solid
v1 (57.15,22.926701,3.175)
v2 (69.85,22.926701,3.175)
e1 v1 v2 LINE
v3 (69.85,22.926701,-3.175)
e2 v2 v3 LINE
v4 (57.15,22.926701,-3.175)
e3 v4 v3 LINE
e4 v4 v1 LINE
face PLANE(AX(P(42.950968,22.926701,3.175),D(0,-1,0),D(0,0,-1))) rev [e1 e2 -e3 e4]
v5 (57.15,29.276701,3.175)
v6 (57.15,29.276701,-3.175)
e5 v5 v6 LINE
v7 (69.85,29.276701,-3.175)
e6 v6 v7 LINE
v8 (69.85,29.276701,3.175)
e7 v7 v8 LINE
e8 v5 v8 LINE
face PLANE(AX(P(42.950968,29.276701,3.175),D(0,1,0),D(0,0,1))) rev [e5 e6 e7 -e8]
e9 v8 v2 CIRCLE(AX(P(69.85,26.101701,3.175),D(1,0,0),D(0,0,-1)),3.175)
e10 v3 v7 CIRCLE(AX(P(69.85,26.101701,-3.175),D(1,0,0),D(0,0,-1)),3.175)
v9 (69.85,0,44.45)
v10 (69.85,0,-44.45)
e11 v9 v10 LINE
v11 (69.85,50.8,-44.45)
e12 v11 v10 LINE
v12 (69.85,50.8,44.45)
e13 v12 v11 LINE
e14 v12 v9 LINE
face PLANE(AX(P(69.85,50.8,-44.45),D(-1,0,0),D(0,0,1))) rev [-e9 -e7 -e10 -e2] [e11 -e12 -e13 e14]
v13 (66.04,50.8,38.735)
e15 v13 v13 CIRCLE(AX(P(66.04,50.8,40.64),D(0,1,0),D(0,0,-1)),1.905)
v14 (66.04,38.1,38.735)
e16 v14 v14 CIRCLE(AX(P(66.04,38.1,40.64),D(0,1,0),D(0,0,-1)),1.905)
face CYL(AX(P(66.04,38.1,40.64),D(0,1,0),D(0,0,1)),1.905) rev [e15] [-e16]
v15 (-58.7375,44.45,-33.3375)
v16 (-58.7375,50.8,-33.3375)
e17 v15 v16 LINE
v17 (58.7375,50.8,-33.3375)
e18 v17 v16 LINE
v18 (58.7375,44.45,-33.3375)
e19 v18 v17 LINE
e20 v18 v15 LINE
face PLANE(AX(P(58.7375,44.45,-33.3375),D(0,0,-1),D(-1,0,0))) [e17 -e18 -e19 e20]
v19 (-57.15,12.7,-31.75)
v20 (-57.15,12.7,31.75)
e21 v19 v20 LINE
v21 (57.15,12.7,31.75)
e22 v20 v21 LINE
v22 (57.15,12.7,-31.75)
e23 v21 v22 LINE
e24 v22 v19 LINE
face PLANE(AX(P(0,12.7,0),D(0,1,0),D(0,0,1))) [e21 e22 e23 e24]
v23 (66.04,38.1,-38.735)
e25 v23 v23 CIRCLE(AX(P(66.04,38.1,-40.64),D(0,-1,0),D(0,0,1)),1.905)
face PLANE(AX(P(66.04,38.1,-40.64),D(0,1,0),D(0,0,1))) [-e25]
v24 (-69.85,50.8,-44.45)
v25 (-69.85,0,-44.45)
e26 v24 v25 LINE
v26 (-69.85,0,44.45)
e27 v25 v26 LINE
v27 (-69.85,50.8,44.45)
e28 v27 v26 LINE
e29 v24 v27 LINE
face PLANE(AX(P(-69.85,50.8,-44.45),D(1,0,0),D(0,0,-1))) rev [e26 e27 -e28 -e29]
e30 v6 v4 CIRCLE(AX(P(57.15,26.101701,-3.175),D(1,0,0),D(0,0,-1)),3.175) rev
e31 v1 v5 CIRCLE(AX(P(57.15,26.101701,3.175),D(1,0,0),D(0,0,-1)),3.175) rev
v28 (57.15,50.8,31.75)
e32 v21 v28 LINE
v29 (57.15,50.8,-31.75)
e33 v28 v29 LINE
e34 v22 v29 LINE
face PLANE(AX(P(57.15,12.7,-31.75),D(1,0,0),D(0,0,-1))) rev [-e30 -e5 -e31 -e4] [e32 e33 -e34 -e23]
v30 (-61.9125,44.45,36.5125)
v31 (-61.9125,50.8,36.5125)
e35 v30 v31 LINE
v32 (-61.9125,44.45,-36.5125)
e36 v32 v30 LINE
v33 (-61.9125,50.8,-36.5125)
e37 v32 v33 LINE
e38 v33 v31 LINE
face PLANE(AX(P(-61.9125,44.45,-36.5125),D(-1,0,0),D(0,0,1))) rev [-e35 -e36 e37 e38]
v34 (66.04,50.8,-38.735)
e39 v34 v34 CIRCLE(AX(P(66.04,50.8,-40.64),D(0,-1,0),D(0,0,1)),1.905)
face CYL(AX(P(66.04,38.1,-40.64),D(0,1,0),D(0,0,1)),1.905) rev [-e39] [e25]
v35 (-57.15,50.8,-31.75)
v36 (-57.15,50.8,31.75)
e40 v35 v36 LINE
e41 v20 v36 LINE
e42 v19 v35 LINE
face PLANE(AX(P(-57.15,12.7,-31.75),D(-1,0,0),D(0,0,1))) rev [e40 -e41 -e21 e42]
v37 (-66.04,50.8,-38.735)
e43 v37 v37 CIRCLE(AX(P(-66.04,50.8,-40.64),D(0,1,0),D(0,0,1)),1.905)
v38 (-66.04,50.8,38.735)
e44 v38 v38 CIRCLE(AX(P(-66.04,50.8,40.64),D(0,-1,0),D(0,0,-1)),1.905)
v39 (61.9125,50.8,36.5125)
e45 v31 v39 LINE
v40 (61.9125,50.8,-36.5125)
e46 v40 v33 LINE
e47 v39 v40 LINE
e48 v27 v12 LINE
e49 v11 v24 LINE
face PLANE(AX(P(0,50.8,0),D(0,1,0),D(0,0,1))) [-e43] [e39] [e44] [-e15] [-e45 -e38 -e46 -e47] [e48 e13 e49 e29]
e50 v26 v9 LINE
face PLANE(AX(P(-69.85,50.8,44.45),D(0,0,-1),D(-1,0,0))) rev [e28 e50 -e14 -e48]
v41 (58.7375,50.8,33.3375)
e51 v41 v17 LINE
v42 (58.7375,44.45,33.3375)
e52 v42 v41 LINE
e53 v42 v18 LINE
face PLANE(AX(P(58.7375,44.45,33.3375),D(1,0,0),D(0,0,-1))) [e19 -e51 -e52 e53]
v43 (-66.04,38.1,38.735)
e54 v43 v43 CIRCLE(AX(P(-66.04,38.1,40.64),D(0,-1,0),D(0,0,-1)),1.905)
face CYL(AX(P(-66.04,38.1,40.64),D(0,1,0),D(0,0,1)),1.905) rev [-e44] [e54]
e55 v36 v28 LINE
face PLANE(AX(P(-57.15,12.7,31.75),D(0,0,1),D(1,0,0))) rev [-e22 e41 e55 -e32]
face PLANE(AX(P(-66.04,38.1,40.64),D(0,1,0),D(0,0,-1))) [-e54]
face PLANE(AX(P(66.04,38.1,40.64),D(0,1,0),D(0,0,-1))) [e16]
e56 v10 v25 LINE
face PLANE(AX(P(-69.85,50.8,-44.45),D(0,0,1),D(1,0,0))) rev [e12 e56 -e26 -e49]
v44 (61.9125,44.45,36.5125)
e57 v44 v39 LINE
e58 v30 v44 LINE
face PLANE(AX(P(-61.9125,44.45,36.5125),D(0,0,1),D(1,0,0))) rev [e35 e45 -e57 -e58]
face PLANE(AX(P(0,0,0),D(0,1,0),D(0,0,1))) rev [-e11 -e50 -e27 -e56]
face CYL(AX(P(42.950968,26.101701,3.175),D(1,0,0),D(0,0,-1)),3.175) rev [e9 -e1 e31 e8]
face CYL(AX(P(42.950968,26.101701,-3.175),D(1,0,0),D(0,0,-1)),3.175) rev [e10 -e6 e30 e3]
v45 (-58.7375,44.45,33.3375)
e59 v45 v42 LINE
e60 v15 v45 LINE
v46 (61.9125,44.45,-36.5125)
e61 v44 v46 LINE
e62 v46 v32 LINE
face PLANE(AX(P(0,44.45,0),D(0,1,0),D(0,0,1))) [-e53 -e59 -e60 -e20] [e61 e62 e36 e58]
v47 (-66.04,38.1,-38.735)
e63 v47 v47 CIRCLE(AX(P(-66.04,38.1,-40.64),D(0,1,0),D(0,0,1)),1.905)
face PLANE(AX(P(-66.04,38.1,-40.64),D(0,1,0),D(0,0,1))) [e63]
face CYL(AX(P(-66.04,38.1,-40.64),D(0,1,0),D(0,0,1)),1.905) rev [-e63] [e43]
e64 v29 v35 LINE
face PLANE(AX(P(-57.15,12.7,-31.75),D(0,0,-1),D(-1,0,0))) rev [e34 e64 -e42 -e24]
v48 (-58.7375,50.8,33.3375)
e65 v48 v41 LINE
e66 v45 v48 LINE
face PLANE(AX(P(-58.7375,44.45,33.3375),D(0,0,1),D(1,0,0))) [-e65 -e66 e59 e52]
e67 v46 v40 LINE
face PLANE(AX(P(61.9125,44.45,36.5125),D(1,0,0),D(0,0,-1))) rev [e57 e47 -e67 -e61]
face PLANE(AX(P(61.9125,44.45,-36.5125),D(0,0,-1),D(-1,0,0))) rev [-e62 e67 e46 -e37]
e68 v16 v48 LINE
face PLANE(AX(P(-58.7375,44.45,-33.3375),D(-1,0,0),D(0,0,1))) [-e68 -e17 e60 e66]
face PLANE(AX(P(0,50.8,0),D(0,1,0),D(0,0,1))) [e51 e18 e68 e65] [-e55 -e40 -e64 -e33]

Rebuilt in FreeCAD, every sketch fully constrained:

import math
import FreeCAD as App
import Part
import Sketcher

V = App.Vector
Q = App.Units.Quantity


def add_polygon(sketch, points):
    """Adds a closed chain of lines whose ends are joined by coincident constraints."""
    first, n = sketch.GeometryCount, len(points)
    for a, b in zip(points, points[1:] + points[:1]):
        sketch.addGeometry(Part.LineSegment(App.Vector(*a, 0), App.Vector(*b, 0)), False)
    for i in range(n):
        sketch.addConstraint(Sketcher.Constraint("Coincident", first + i, 2, first + (i + 1) % n, 1))

doc = App.newDocument("Part")
body = doc.addObject("PartDesign::Body", "Body")

# Sketch on XZ plane
sketch1 = body.newObject("Sketcher::SketchObject", "Sketch")
sketch1.AttachmentSupport = (doc.getObject("XZ_Plane"), [""])
sketch1.MapMode = "FlatFace"
add_polygon(sketch1, [(-70, -44), (-70, 44), (70, 44), (70, -44)])  # lines 0-3
sketch1.addConstraint([
    Sketcher.Constraint("Vertical", 0),
    Sketcher.Constraint("Horizontal", 1),
    Sketcher.Constraint("Vertical", 2),
    Sketcher.Constraint("Horizontal", 3),
    Sketcher.Constraint("Symmetric", 0, 2, 2, 2, -1, 1),
    Sketcher.Constraint("DistanceX", 1, 1, 1, 2, Q("5.5 in")),
    Sketcher.Constraint("DistanceY", 0, 1, 0, 2, Q("3.5 in")),
])
pad1 = body.newObject("PartDesign::Pad", "Pad")
pad1.Profile = sketch1
pad1.Length = Q("2 in")
pad1.Reversed = True

# Sketch on XZ plane
sketch2 = body.newObject("Sketcher::SketchObject", "Sketch001")
sketch2.AttachmentSupport = (doc.getObject("XZ_Plane"), [""])
sketch2.MapMode = "FlatFace"
sketch2.AttachmentOffset = App.Placement(V(0, 0, -2 * 25.4), App.Rotation())
add_polygon(sketch2, [(-57, -32), (-57, 32), (57, 32), (57, -32)])  # lines 0-3
sketch2.addConstraint([
    Sketcher.Constraint("Vertical", 0),
    Sketcher.Constraint("Horizontal", 1),
    Sketcher.Constraint("Vertical", 2),
    Sketcher.Constraint("Horizontal", 3),
    Sketcher.Constraint("Symmetric", 0, 2, 2, 2, -1, 1),
    Sketcher.Constraint("DistanceX", 1, 1, 1, 2, Q("4.5 in")),
    Sketcher.Constraint("DistanceY", 0, 1, 0, 2, Q("2.5 in")),
])
pocket1 = body.newObject("PartDesign::Pocket", "Pocket")
pocket1.Profile = sketch2
pocket1.Length = Q("1.5 in")
pocket1.Reversed = True

# Sketch on XZ plane
sketch3 = body.newObject("Sketcher::SketchObject", "Sketch002")
sketch3.AttachmentSupport = (doc.getObject("XZ_Plane"), [""])
sketch3.MapMode = "FlatFace"
sketch3.AttachmentOffset = App.Placement(V(0, 0, -2 * 25.4), App.Rotation())
add_polygon(sketch3, [(-62, -37), (-62, 37), (62, 37), (62, -37)])  # lines 0-3
add_polygon(sketch3, [(59, 33), (-59, 33), (-59, -33), (59, -33)])  # lines 4-7
sketch3.addConstraint([
    Sketcher.Constraint("Vertical", 0),
    Sketcher.Constraint("Horizontal", 1),
    Sketcher.Constraint("Vertical", 2),
    Sketcher.Constraint("Horizontal", 3),
    Sketcher.Constraint("Horizontal", 4),
    Sketcher.Constraint("Vertical", 5),
    Sketcher.Constraint("Horizontal", 6),
    Sketcher.Constraint("Vertical", 7),
    Sketcher.Constraint("Symmetric", 0, 2, 2, 2, -1, 1),
    Sketcher.Constraint("Symmetric", 4, 2, 6, 2, -1, 1),
    Sketcher.Constraint("DistanceX", 1, 1, 1, 2, Q("4.875 in")),
    Sketcher.Constraint("DistanceX", 4, 2, 4, 1, Q("4.625 in")),
    Sketcher.Constraint("DistanceY", 0, 1, 0, 2, Q("2.875 in")),
    Sketcher.Constraint("DistanceY", 5, 2, 5, 1, Q("2.625 in")),
])
pocket2 = body.newObject("PartDesign::Pocket", "Pocket001")
pocket2.Profile = sketch3
pocket2.Length = Q("0.25 in")
pocket2.Reversed = True

# Sketch on XZ plane
sketch4 = body.newObject("Sketcher::SketchObject", "Sketch003")
sketch4.AttachmentSupport = (doc.getObject("XZ_Plane"), [""])
sketch4.MapMode = "FlatFace"
sketch4.AttachmentOffset = App.Placement(V(0, 0, -2 * 25.4), App.Rotation())
sketch4.addGeometry(Part.Circle(V(-66, -40.6, 0), V(0, 0, 1), 1.9), False)
sketch4.addConstraint([
    Sketcher.Constraint("Diameter", 0, Q("0.15 in")),
    Sketcher.Constraint("DistanceX", 0, 3, -1, 1, Q("2.6 in")),
    Sketcher.Constraint("DistanceY", 0, 3, -1, 1, Q("1.6 in")),
])
pocket3 = body.newObject("PartDesign::Pocket", "Pocket002")
pocket3.Profile = sketch4
pocket3.Length = Q("0.5 in")
pocket3.Reversed = True
doc.recompute()

mirrored = body.newObject("PartDesign::Mirrored", "Mirrored")
mirrored.Originals = [pocket3]
mirrored.MirrorPlane = (doc.getObject("YZ_Plane"), [""])
body.Tip = mirrored
doc.recompute()

mirrored2 = body.newObject("PartDesign::Mirrored", "Mirrored001")
mirrored2.Originals = [pocket3]
mirrored2.MirrorPlane = (doc.getObject("XY_Plane"), [""])
body.Tip = mirrored2

# Sketch on XZ plane
sketch5 = body.newObject("Sketcher::SketchObject", "Sketch004")
sketch5.AttachmentSupport = (doc.getObject("XZ_Plane"), [""])
sketch5.MapMode = "FlatFace"
sketch5.AttachmentOffset = App.Placement(V(0, 0, -2 * 25.4), App.Rotation())
sketch5.addGeometry(Part.Circle(V(66, 40.6, 0), V(0, 0, 1), 1.9), False)
sketch5.addConstraint([
    Sketcher.Constraint("Diameter", 0, Q("0.15 in")),
    Sketcher.Constraint("DistanceX", -1, 1, 0, 3, Q("2.6 in")),
    Sketcher.Constraint("DistanceY", -1, 1, 0, 3, Q("1.6 in")),
])
pocket4 = body.newObject("PartDesign::Pocket", "Pocket003")
pocket4.Profile = sketch5
pocket4.Length = Q("0.5 in")
pocket4.Reversed = True

# Sketch on YZ plane
sketch6 = body.newObject("Sketcher::SketchObject", "Sketch005")
sketch6.AttachmentSupport = (doc.getObject("YZ_Plane"), [""])
sketch6.MapMode = "FlatFace"
sketch6.AttachmentOffset = App.Placement(V(0, 0, 2.75 * 25.4), App.Rotation())
sketch6.addGeometry([
    Part.LineSegment(V(22.9, 3.2, 0), V(22.9, -3.2, 0)),
    Part.ArcOfCircle(Part.Circle(V(26.1, -3.2, 0), V(0, 0, 1), 3.2), math.radians(180), math.radians(360)),
    Part.LineSegment(V(29.3, -3.2, 0), V(29.3, 3.2, 0)),
    Part.ArcOfCircle(Part.Circle(V(26.1, 3.2, 0), V(0, 0, 1), 3.2), math.radians(0), math.radians(180)),
], False)
sketch6.addConstraint([
    Sketcher.Constraint("Tangent", 0, 2, 1, 1),
    Sketcher.Constraint("Tangent", 1, 2, 2, 1),
    Sketcher.Constraint("Tangent", 2, 2, 3, 1),
    Sketcher.Constraint("Tangent", 3, 2, 0, 1),
    Sketcher.Constraint("Vertical", 0),
    Sketcher.Constraint("Vertical", 2),
    Sketcher.Constraint("Radius", 1, Q("0.125 in")),
    Sketcher.Constraint("DistanceY", 0, 2, 0, 1, Q("0.25 in")),
    Sketcher.Constraint("DistanceY", 1, 3, -1, 1, Q("0.125 in")),
    Sketcher.Constraint("DistanceX", -1, 1, 1, 3, 26.101701),
])
pocket5 = body.newObject("PartDesign::Pocket", "Pocket004")
pocket5.Profile = sketch6
pocket5.Length = Q("0.5 in")

doc.recompute()
